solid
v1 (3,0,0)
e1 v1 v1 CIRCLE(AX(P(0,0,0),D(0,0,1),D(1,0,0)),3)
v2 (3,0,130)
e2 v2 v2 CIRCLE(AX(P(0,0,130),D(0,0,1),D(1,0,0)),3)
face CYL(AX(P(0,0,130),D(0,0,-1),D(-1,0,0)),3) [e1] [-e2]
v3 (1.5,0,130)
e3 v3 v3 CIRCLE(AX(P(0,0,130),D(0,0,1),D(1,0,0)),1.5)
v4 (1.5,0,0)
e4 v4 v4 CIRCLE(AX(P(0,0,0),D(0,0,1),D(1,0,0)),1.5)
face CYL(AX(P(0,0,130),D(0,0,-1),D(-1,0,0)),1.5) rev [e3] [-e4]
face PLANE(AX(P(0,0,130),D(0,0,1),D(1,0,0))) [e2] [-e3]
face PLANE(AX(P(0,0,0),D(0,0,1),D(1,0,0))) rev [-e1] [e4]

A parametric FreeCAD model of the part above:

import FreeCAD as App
import Part
import Sketcher

doc = App.newDocument("Part")
body = doc.addObject("PartDesign::Body", "Body")

sketch1 = body.newObject("Sketcher::SketchObject", "Sketch")
sketch1.AttachmentSupport = (doc.getObject("XY_Plane"), [""])
sketch1.MapMode = "FlatFace"
sketch1.addGeometry(Part.Circle(App.Vector(0, 0, 0), App.Vector(0, 0, 1), 3), False)
sketch1.addGeometry(Part.Circle(App.Vector(0, 0, 0), App.Vector(0, 0, 1), 1.5), False)
sketch1.addConstraint(Sketcher.Constraint("Coincident", 0, 3, -1, 1))
sketch1.addConstraint(Sketcher.Constraint("Coincident", 1, 3, -1, 1))
sketch1.addConstraint(Sketcher.Constraint("Diameter", 0, 6.0))
sketch1.addConstraint(Sketcher.Constraint("Diameter", 1, 3.0))
pad1 = body.newObject("PartDesign::Pad", "Pad")
pad1.Profile = sketch1
pad1.Length = 130

doc.recompute()
